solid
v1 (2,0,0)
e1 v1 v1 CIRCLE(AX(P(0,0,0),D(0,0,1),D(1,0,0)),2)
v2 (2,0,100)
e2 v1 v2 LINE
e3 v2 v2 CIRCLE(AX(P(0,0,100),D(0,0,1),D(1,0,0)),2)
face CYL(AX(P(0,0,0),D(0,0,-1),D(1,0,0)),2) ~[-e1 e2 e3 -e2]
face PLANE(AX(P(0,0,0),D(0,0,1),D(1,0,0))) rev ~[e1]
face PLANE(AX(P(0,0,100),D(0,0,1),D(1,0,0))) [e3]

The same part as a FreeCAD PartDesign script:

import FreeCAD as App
import Part
import Sketcher
from FreeCAD import Vector

doc = App.newDocument("Part")
params = doc.addObject("Spreadsheet::Sheet", "Params")
for row, (alias, value) in enumerate([
    ("sketch1_diameter", "4 mm"),
    ("pad1_length", "100 mm"),
], start=1):
    params.set(f"A{row}", alias)
    params.set(f"B{row}", "=" + value)
    params.setAlias(f"B{row}", alias)

body = doc.addObject("PartDesign::Body", "Body")

sketch1 = body.newObject("Sketcher::SketchObject", "Sketch")
sketch1.AttachmentSupport = (doc.getObject("XY_Plane"), [""])
sketch1.MapMode = "FlatFace"
sketch1.addGeometry(Part.Circle(Vector(0, 0, 0), Vector(0, 0, 1), 2), False)
sketch1.addConstraint(Sketcher.Constraint("Coincident", 0, 3, -1, 1))
sketch1.addConstraint(Sketcher.Constraint("Diameter", 0, 4.0))
sketch1.setExpression("Constraints[1]", "Params.sketch1_diameter")
pad1 = body.newObject("PartDesign::Pad", "Pad")
pad1.Profile = sketch1
pad1.setExpression("Length", "Params.pad1_length")

doc.recompute()
